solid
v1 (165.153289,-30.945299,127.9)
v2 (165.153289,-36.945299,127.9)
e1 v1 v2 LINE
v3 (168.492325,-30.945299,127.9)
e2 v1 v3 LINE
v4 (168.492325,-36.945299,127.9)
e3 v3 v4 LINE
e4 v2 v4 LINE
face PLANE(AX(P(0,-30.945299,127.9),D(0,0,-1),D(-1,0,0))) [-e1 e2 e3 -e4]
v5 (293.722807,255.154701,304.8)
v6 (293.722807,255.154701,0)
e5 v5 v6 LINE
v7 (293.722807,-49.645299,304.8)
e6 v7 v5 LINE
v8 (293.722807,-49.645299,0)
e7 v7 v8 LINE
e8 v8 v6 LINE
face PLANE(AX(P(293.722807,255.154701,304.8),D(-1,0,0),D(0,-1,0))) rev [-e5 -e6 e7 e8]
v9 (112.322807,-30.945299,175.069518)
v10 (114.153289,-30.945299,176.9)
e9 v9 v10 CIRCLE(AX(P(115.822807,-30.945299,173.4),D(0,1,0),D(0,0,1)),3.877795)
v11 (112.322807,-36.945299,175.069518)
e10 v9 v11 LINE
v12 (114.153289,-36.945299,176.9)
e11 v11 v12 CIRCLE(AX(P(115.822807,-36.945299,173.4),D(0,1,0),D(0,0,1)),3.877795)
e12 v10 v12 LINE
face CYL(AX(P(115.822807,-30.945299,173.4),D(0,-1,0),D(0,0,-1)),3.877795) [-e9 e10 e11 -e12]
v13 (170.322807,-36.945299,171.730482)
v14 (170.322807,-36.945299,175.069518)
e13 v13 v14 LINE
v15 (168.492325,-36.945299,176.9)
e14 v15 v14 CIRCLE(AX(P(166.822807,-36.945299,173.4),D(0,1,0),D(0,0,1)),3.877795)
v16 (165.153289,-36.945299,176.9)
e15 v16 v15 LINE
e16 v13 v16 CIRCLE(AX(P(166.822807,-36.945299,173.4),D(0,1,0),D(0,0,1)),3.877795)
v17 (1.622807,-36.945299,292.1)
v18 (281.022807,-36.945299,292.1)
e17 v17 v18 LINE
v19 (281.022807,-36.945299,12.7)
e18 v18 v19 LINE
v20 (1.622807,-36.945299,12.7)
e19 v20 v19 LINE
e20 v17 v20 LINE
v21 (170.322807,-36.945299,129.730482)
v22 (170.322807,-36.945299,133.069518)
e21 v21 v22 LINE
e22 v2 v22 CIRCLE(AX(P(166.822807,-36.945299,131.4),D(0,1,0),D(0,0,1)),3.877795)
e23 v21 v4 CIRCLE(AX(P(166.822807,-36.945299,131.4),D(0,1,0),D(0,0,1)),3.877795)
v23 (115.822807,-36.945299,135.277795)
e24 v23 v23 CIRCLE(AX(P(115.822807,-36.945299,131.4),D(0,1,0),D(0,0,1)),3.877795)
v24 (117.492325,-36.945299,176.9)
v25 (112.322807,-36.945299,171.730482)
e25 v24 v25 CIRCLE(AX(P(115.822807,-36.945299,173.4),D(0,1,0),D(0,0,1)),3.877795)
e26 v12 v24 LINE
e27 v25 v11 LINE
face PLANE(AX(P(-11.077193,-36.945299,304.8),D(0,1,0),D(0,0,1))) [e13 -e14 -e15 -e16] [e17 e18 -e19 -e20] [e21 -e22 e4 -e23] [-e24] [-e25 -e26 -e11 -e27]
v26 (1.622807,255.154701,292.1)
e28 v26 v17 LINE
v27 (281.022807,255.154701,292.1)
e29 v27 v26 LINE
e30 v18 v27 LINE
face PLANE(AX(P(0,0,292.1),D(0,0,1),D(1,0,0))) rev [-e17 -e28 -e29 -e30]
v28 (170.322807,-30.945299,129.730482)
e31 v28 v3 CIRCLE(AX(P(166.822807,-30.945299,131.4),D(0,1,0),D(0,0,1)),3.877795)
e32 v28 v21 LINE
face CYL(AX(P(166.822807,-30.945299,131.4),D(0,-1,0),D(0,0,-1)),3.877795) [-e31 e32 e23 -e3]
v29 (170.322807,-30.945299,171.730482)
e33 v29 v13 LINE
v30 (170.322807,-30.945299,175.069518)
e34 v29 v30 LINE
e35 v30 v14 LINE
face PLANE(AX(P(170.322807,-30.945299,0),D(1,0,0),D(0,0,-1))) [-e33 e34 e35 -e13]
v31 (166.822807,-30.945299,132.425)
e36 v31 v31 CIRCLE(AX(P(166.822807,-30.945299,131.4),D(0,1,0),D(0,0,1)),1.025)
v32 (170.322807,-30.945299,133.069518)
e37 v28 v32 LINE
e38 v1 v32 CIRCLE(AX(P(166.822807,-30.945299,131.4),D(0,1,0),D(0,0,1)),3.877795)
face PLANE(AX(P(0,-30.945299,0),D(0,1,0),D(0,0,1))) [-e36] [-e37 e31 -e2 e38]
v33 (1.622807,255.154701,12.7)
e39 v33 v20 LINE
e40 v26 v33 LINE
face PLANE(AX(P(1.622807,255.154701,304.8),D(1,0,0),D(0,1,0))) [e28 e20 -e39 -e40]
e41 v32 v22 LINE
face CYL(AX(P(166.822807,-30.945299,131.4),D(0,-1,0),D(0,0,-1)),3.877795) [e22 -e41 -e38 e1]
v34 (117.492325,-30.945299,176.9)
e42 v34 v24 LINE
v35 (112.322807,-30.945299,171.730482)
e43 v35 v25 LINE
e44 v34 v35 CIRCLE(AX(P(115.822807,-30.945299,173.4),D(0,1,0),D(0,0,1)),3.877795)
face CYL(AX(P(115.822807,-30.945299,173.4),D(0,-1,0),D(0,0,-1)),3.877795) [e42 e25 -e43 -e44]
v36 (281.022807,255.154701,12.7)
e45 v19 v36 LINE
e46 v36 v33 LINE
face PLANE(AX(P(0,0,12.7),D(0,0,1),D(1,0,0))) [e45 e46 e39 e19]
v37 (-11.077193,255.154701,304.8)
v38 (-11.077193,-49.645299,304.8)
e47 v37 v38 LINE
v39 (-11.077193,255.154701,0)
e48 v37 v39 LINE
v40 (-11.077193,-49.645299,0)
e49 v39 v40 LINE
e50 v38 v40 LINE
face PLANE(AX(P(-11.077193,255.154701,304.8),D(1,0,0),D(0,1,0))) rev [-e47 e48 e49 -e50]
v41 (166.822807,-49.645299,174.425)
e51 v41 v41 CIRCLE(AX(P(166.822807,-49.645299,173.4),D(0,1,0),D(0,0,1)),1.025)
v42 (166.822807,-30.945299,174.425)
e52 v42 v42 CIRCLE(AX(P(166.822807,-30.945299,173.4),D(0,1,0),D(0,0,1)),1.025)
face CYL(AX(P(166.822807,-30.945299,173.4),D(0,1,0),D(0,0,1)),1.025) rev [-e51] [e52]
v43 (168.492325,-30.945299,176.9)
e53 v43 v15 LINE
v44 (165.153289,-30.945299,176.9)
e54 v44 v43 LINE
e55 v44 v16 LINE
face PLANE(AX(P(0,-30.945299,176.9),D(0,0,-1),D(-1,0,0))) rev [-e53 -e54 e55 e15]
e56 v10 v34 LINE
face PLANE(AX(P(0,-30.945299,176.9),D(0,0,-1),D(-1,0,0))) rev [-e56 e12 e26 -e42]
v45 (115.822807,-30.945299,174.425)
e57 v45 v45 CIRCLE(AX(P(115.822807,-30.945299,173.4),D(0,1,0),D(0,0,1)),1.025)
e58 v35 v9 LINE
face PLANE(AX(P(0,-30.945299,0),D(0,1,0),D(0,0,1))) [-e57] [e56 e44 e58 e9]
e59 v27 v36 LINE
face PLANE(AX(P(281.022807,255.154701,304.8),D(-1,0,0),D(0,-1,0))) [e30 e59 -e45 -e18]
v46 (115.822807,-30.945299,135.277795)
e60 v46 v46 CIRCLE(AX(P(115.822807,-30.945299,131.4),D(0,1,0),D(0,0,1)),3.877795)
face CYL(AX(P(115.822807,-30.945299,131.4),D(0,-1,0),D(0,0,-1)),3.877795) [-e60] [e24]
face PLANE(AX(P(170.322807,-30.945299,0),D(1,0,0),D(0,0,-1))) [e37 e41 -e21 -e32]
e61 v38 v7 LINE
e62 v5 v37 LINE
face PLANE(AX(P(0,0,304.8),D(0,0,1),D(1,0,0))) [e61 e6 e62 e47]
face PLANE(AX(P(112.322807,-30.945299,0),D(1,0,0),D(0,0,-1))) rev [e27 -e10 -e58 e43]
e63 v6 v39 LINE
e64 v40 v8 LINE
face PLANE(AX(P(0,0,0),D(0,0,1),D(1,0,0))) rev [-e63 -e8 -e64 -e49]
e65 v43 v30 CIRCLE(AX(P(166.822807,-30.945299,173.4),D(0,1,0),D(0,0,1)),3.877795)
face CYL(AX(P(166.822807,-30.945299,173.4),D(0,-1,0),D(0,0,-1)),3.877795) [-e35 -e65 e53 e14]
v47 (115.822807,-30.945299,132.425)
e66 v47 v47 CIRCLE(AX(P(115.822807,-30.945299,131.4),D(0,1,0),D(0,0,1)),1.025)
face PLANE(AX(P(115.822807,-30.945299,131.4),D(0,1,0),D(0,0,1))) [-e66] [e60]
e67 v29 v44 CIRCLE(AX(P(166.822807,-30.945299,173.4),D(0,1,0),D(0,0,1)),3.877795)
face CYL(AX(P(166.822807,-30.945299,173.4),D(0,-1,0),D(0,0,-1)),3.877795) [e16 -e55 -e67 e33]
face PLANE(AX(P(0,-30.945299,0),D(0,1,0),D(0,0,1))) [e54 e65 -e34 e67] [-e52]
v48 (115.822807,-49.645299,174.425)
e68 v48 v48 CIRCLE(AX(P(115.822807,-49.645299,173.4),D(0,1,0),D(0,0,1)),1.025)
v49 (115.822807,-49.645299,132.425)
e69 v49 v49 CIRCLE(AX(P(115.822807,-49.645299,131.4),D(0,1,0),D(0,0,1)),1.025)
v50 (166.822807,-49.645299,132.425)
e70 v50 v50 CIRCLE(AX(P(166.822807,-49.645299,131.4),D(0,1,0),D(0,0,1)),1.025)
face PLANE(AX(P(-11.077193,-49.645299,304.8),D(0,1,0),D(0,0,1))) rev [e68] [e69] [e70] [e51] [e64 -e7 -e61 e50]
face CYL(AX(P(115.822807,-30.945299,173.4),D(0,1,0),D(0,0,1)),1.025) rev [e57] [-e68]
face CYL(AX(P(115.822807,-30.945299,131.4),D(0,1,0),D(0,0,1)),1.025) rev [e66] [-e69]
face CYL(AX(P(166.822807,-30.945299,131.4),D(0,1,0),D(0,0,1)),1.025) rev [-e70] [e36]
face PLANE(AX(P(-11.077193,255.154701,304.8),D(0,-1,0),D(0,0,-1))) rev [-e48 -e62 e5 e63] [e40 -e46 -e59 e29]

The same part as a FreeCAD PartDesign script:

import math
import FreeCAD as App
import Part
import Sketcher
from FreeCAD import Vector
Q = App.Units.Quantity


def faces_at(feature, points):
    """Names of the faces that lie closest to the given points."""
    faces = feature.Shape.Faces
    near = lambda p: min(range(len(faces)), key=lambda i: faces[i].distToShape(Part.Vertex(*p))[0])
    return sorted({f"Face{near(p) + 1}" for p in points})

doc = App.newDocument("Part")
body = doc.addObject("PartDesign::Body", "Body")

# Sketch on XY plane
sketch1 = doc.addObject("Sketcher::SketchObject", "Sketch")
body.addObject(sketch1)
sketch1.AttachmentSupport = (doc.XY_Plane, [""])
sketch1.MapMode = "FlatFace"
sketch1.addGeometry([
    Part.LineSegment(Vector(-11, 255, 0), Vector(-11, -50, 0)),
    Part.LineSegment(Vector(-11, -50, 0), Vector(294, -50, 0)),
    Part.LineSegment(Vector(294, -50, 0), Vector(294, 255, 0)),
    Part.LineSegment(Vector(294, 255, 0), Vector(-11, 255, 0)),
], False)
sketch1.addConstraint([
    Sketcher.Constraint("Coincident", 0, 2, 1, 1),
    Sketcher.Constraint("Coincident", 1, 2, 2, 1),
    Sketcher.Constraint("Coincident", 2, 2, 3, 1),
    Sketcher.Constraint("Coincident", 3, 2, 0, 1),
    Sketcher.Constraint("Vertical", 0),
    Sketcher.Constraint("Horizontal", 1),
    Sketcher.Constraint("Vertical", 2),
    Sketcher.Constraint("Horizontal", 3),
    Sketcher.Constraint("Equal", 3, 0),
    Sketcher.Constraint("DistanceX", 1, 1, 1, 2, Q("12 in")),
    Sketcher.Constraint("DistanceY", 0, 2, -1, 1, Q("49.645299 mm")),
    Sketcher.Constraint("DistanceX", 0, 2, -1, 1, Q("11.077193 mm")),
])
pad1 = doc.addObject("PartDesign::Pad", "Pad")
body.addObject(pad1)
pad1.Profile = sketch1
pad1.Length = Q("12 in")
doc.recompute()

thickness = doc.addObject("PartDesign::Thickness", "Thickness")
body.addObject(thickness)
thickness.Base = (pad1, faces_at(pad1, [(141.323, 255.155, 152.4)]))
thickness.Value = Q("0.5 in")
thickness.Reversed = True
thickness.Join = "Intersection"

# Sketch on XZ plane
sketch2 = doc.addObject("Sketcher::SketchObject", "Sketch001")
body.addObject(sketch2)
sketch2.AttachmentSupport = (doc.XZ_Plane, [""])
sketch2.MapMode = "FlatFace"
sketch2.AttachmentOffset = App.Placement(Vector(0, 0, 36.945299), App.Rotation())
sketch2.addGeometry([
    Part.Circle(Vector(115.8, 131.4, 0), Vector(0, 0, 1), 3.9),  # 0
    Part.LineSegment(Vector(168.5, 127.9, 0), Vector(165.2, 127.9, 0)),  # 1
    Part.ArcOfCircle(Part.Circle(Vector(166.8, 131.4, 0), Vector(0, 0, 1), 3.9), math.radians(26), math.radians(244)),  # 2
    Part.LineSegment(Vector(170.3, 133.1, 0), Vector(170.3, 129.7, 0)),  # 3
    Part.ArcOfCircle(Part.Circle(Vector(166.8, 131.4, 0), Vector(0, 0, 1), 3.9), math.radians(-64), math.radians(-26)),  # 4
    Part.ArcOfCircle(Part.Circle(Vector(115.8, 173.4, 0), Vector(0, 0, 1), 3.9), math.radians(-154), math.radians(64)),  # 5
    Part.LineSegment(Vector(112.3, 171.7, 0), Vector(112.3, 175.1, 0)),  # 6
    Part.ArcOfCircle(Part.Circle(Vector(115.8, 173.4, 0), Vector(0, 0, 1), 3.9), math.radians(116), math.radians(154)),  # 7
    Part.LineSegment(Vector(114.2, 176.9, 0), Vector(117.5, 176.9, 0)),  # 8
    Part.LineSegment(Vector(170.3, 175.1, 0), Vector(170.3, 171.7, 0)),  # 9
    Part.ArcOfCircle(Part.Circle(Vector(166.8, 173.4, 0), Vector(0, 0, 1), 3.9), math.radians(116), math.radians(334)),  # 10
    Part.LineSegment(Vector(165.2, 176.9, 0), Vector(168.5, 176.9, 0)),  # 11
    Part.ArcOfCircle(Part.Circle(Vector(166.8, 173.4, 0), Vector(0, 0, 1), 3.9), math.radians(26), math.radians(64)),  # 12
], False)
sketch2.addConstraint([
    Sketcher.Constraint("Coincident", 1, 2, 2, 2),
    Sketcher.Constraint("Coincident", 2, 1, 3, 1),
    Sketcher.Constraint("Coincident", 3, 2, 4, 2),
    Sketcher.Constraint("Coincident", 4, 1, 1, 1),
    Sketcher.Constraint("Coincident", 5, 1, 6, 1),
    Sketcher.Constraint("Coincident", 6, 2, 7, 2),
    Sketcher.Constraint("Coincident", 7, 1, 8, 1),
    Sketcher.Constraint("Coincident", 8, 2, 5, 2),
    Sketcher.Constraint("Coincident", 9, 2, 10, 2),
    Sketcher.Constraint("Coincident", 10, 1, 11, 1),
    Sketcher.Constraint("Coincident", 11, 2, 12, 2),
    Sketcher.Constraint("Coincident", 12, 1, 9, 1),
    Sketcher.Constraint("Horizontal", 1),
    Sketcher.Constraint("Vertical", 3),
    Sketcher.Constraint("Vertical", 6),
    Sketcher.Constraint("Horizontal", 8),
    Sketcher.Constraint("Vertical", 9),
    Sketcher.Constraint("Horizontal", 11),
    Sketcher.Constraint("Coincident", 4, 3, 2, 3),
    Sketcher.Constraint("Coincident", 7, 3, 5, 3),
    Sketcher.Constraint("Coincident", 12, 3, 10, 3),
    Sketcher.Constraint("Equal", 0, 2),
    Sketcher.Constraint("Equal", 2, 4),
    Sketcher.Constraint("Equal", 4, 5),
    Sketcher.Constraint("Equal", 5, 7),
    Sketcher.Constraint("Equal", 7, 10),
    Sketcher.Constraint("Equal", 10, 12),
    Sketcher.Constraint("Horizontal", 0, 3, 2, 3),
    Sketcher.Constraint("Horizontal", 7, 3, 10, 3),
    Sketcher.Constraint("Horizontal", 5, 1, 9, 2),
    Sketcher.Constraint("Horizontal", 8, 2, 10, 1),
    Sketcher.Constraint("Vertical", 0, 3, 5, 3),
    Sketcher.Constraint("Vertical", 4, 3, 10, 3),
    Sketcher.Constraint("Vertical", 3, 2, 9, 2),
    Sketcher.Constraint("Vertical", 1, 2, 10, 1),
    Sketcher.Constraint("Equal", 11, 3),
    Sketcher.Constraint("Diameter", 0, Q("7.755589 mm")),
    Sketcher.Constraint("DistanceY", -1, 1, 0, 3, Q("131.4 mm")),
    Sketcher.Constraint("DistanceY", -1, 1, 5, 3, Q("173.4 mm")),
    Sketcher.Constraint("DistanceY", -1, 1, 1, 2, Q("127.9 mm")),
    Sketcher.Constraint("DistanceX", 0, 3, 2, 3, Q("51 mm")),
    Sketcher.Constraint("DistanceX", -1, 1, 1, 2, Q("165.153289 mm")),
])
pad2 = doc.addObject("PartDesign::Pad", "Pad001")
body.addObject(pad2)
pad2.Profile = sketch2
pad2.Length = 6
pad2.Reversed = True

# Sketch on XZ plane
sketch3 = doc.addObject("Sketcher::SketchObject", "Sketch002")
body.addObject(sketch3)
sketch3.AttachmentSupport = (doc.XZ_Plane, [""])
sketch3.MapMode = "FlatFace"
sketch3.AttachmentOffset = App.Placement(Vector(0, 0, 30.945299), App.Rotation())
sketch3.addGeometry([
    Part.Circle(Vector(115.8, 131.4, 0), Vector(0, 0, 1), 1),
    Part.Circle(Vector(166.8, 131.4, 0), Vector(0, 0, 1), 1),
    Part.Circle(Vector(166.8, 173.4, 0), Vector(0, 0, 1), 1),
    Part.Circle(Vector(115.8, 173.4, 0), Vector(0, 0, 1), 1),
], False)
sketch3.addConstraint([
    Sketcher.Constraint("Equal", 0, 1),
    Sketcher.Constraint("Equal", 1, 2),
    Sketcher.Constraint("Equal", 2, 3),
    Sketcher.Constraint("Horizontal", 0, 3, 1, 3),
    Sketcher.Constraint("Horizontal", 2, 3, 3, 3),
    Sketcher.Constraint("Vertical", 1, 3, 2, 3),
    Sketcher.Constraint("Vertical", 0, 3, 3, 3),
    Sketcher.Constraint("Diameter", 0, Q("2.05 mm")),
    Sketcher.Constraint("DistanceY", -1, 1, 0, 3, Q("131.4 mm")),
    Sketcher.Constraint("DistanceY", -1, 1, 2, 3, Q("173.4 mm")),
    Sketcher.Constraint("DistanceX", 0, 3, 1, 3, Q("51 mm")),
    Sketcher.Constraint("DistanceX", -1, 1, 0, 3, Q("115.822807 mm")),
])
doc.recompute()
hole = doc.addObject("PartDesign::Hole", "Hole")
body.addObject(hole)
hole.Profile = sketch3
hole.ThreadType = "None"
hole.Diameter = 2.05
hole.DepthType = "ThroughAll"
hole.Reversed = True

doc.recompute()
